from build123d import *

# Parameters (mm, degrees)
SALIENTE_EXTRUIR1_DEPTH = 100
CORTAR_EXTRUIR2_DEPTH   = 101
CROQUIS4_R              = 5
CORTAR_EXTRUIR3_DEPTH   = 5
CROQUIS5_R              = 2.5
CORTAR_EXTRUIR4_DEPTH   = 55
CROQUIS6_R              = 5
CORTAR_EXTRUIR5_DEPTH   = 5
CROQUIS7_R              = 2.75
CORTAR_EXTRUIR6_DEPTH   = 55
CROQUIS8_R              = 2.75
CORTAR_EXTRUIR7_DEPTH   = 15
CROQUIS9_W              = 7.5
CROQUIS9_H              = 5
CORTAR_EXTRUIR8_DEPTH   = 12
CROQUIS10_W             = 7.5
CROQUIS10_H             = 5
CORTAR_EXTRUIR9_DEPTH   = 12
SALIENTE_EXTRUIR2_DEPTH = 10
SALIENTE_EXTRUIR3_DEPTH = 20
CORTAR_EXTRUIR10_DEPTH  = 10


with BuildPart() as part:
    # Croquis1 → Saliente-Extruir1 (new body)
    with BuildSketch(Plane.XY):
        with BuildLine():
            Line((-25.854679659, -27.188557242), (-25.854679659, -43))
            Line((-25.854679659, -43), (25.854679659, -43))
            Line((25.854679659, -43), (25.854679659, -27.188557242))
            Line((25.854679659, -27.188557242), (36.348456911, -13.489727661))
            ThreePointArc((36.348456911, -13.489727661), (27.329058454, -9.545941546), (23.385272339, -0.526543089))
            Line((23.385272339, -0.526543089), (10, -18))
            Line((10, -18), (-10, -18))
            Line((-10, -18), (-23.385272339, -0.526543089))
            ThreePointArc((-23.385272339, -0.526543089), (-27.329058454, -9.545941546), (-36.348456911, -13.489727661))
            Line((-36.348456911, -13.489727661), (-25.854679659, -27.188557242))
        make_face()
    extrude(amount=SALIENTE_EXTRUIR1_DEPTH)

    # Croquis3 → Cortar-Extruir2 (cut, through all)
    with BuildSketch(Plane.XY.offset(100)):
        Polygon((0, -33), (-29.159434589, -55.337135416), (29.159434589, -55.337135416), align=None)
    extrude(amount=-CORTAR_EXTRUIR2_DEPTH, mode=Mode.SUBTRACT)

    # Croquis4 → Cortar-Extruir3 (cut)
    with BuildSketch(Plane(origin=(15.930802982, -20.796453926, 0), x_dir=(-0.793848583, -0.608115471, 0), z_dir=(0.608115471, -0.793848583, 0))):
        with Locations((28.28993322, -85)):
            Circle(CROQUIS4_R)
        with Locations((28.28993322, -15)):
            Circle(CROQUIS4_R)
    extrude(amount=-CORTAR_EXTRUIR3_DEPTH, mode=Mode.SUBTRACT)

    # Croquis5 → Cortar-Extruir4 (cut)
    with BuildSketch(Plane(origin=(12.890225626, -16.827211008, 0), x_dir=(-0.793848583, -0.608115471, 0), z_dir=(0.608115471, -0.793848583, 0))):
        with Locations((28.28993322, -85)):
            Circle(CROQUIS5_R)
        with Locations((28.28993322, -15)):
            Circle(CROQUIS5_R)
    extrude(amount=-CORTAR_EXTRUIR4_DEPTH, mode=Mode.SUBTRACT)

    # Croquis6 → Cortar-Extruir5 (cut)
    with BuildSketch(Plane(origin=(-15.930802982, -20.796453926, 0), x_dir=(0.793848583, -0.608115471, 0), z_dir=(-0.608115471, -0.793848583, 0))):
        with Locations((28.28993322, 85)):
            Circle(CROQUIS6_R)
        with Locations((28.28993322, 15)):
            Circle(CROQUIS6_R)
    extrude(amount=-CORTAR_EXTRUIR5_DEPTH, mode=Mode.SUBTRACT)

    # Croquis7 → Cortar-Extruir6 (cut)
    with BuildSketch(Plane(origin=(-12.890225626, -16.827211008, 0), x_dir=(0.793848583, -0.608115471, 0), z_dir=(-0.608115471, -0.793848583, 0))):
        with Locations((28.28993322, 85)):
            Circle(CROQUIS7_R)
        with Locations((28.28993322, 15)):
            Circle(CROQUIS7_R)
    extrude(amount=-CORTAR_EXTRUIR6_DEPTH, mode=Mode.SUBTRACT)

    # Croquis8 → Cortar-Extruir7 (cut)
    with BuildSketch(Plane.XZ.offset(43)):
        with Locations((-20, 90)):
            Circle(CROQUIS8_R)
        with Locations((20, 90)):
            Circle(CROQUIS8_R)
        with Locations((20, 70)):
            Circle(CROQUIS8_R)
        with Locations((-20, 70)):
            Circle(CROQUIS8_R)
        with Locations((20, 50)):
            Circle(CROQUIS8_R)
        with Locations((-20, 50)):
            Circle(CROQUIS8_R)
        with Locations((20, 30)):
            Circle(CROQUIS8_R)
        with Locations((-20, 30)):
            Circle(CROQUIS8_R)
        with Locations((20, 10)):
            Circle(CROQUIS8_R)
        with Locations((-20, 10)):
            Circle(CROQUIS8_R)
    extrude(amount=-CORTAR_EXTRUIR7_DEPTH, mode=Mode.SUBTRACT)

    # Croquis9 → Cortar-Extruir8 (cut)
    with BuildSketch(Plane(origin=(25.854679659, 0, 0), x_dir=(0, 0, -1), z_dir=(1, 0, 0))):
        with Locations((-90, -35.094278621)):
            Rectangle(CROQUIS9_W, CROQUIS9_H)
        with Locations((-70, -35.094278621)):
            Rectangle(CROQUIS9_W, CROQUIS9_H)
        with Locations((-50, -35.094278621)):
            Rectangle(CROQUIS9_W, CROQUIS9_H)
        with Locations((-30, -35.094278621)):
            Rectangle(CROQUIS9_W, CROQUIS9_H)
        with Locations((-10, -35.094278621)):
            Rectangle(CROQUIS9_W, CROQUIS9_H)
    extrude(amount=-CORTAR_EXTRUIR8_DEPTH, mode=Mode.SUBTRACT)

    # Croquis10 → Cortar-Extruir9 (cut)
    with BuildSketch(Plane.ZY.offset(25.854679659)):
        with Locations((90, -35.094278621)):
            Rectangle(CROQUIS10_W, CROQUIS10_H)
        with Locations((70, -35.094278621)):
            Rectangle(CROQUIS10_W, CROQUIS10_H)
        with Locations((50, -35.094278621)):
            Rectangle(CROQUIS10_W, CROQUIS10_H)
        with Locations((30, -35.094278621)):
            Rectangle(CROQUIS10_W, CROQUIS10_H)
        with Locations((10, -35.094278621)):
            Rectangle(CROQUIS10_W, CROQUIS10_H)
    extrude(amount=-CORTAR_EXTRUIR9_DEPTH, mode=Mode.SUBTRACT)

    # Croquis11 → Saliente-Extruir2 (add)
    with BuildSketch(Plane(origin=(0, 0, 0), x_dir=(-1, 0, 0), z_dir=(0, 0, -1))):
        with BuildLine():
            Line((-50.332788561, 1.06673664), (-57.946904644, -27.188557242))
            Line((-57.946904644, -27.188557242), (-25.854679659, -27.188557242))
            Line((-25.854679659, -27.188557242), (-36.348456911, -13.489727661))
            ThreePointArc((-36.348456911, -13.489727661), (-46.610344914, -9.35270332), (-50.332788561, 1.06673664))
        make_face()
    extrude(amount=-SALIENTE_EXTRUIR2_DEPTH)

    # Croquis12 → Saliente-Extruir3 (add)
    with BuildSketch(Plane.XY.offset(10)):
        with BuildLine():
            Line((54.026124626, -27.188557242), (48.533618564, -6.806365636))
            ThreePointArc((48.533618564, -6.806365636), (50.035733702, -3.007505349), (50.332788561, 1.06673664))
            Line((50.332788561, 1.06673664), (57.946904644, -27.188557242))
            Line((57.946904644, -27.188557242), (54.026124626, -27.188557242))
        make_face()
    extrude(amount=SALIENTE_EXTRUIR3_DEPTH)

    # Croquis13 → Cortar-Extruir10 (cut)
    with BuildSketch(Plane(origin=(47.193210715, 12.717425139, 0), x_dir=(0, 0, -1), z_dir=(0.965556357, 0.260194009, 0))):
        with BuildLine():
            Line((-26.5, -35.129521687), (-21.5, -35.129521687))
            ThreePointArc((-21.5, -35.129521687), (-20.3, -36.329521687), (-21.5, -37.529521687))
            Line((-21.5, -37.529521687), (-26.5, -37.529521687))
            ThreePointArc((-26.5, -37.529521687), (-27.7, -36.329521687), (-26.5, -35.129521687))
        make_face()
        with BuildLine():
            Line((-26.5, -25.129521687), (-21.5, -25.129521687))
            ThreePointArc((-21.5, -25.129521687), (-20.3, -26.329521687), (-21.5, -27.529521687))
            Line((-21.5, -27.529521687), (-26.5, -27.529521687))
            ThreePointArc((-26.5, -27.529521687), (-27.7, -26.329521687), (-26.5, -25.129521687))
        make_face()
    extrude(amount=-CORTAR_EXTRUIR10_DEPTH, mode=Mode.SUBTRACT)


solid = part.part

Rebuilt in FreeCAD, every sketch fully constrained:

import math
import FreeCAD as App
import Part
import Sketcher
from FreeCAD import Vector
Q = App.Units.Quantity

doc = App.newDocument("Part")
body = doc.addObject("PartDesign::Body", "Body")

sketch1 = body.newObject("Sketcher::SketchObject", "Sketch")
sketch1.AttachmentSupport = (doc.getObject("XY_Plane"), [""])
sketch1.MapMode = "FlatFace"
sketch1.addGeometry(Part.LineSegment(Vector(-26, -27, 0), Vector(-26, -43, 0)), False)
sketch1.addGeometry(Part.LineSegment(Vector(-26, -43, 0), Vector(26, -43, 0)), False)
sketch1.addGeometry(Part.LineSegment(Vector(26, -43, 0), Vector(26, -27, 0)), False)
sketch1.addGeometry(Part.LineSegment(Vector(26, -27, 0), Vector(36, -13, 0)), False)
sketch1.addGeometry(Part.ArcOfCircle(Part.Circle(Vector(37, 0, 0), Vector(0, 0, 1), 13), math.radians(-178), math.radians(-92)), False)
sketch1.addGeometry(Part.LineSegment(Vector(23, -1, 0), Vector(10, -18, 0)), False)
sketch1.addGeometry(Part.LineSegment(Vector(10, -18, 0), Vector(-10, -18, 0)), False)
sketch1.addGeometry(Part.LineSegment(Vector(-10, -18, 0), Vector(-23, -1, 0)), False)
sketch1.addGeometry(Part.ArcOfCircle(Part.Circle(Vector(-37, 0, 0), Vector(0, 0, 1), 13), math.radians(-88), math.radians(-2)), False)
sketch1.addGeometry(Part.LineSegment(Vector(-36, -13, 0), Vector(-26, -27, 0)), False)
sketch1.addConstraint(Sketcher.Constraint("Coincident", 0, 2, 1, 1))
sketch1.addConstraint(Sketcher.Constraint("Coincident", 1, 2, 2, 1))
sketch1.addConstraint(Sketcher.Constraint("Coincident", 2, 2, 3, 1))
sketch1.addConstraint(Sketcher.Constraint("Coincident", 3, 2, 4, 2))
sketch1.addConstraint(Sketcher.Constraint("Coincident", 4, 1, 5, 1))
sketch1.addConstraint(Sketcher.Constraint("Coincident", 5, 2, 6, 1))
sketch1.addConstraint(Sketcher.Constraint("Coincident", 6, 2, 7, 1))
sketch1.addConstraint(Sketcher.Constraint("Coincident", 7, 2, 8, 2))
sketch1.addConstraint(Sketcher.Constraint("Coincident", 8, 1, 9, 1))
sketch1.addConstraint(Sketcher.Constraint("Coincident", 9, 2, 0, 1))
sketch1.addConstraint(Sketcher.Constraint("Vertical", 0))
sketch1.addConstraint(Sketcher.Constraint("Horizontal", 1))
sketch1.addConstraint(Sketcher.Constraint("Vertical", 2))
sketch1.addConstraint(Sketcher.Constraint("Horizontal", 6))
sketch1.addConstraint(Sketcher.Constraint("Equal", 4, 8))
sketch1.addConstraint(Sketcher.Constraint("Symmetric", 4, 3, 8, 3, -1, 1))
sketch1.addConstraint(Sketcher.Constraint("Symmetric", 4, 1, 7, 2, -2))
sketch1.addConstraint(Sketcher.Constraint("Symmetric", 2, 2, 9, 2, -2))
sketch1.addConstraint(Sketcher.Constraint("Parallel", 3, 5))
sketch1.addConstraint(Sketcher.Constraint("Parallel", 7, 9))
sketch1.addConstraint(Sketcher.Constraint("Horizontal", 3, 2, 8, 1))
sketch1.addConstraint(Sketcher.Constraint("Radius", 4, Q("13.5 mm")))
sketch1.addConstraint(Sketcher.Constraint("DistanceX", 6, 2, 6, 1, Q("20 mm")))
sketch1.addConstraint(Sketcher.Constraint("DistanceY", 0, 2, -1, 1, Q("43 mm")))
sketch1.addConstraint(Sketcher.Constraint("DistanceY", 5, 2, -1, 1, Q("18 mm")))
sketch1.addConstraint(Sketcher.Constraint("DistanceX", 8, 3, 4, 3, Q("73.75 mm")))
sketch1.addConstraint(Sketcher.Constraint("DistanceX", 1, 1, 1, 2, Q("51.709359 mm")))
sketch1.addConstraint(Sketcher.Constraint("Distance", 5, Q("22.01107 mm")))
sketch1.addConstraint(Sketcher.Constraint("DistanceY", 0, 2, 0, 1, Q("15.811443 mm")))
pad1 = body.newObject("PartDesign::Pad", "Pad")
pad1.Profile = sketch1
pad1.Length = 100

sketch2 = body.newObject("Sketcher::SketchObject", "Sketch001")
sketch2.AttachmentSupport = (doc.getObject("XY_Plane"), [""])
sketch2.MapMode = "FlatFace"
sketch2.AttachmentOffset = App.Placement(Vector(0, 0, 100), App.Rotation())
sketch2.addGeometry(Part.LineSegment(Vector(0, -33, 0), Vector(-29, -55, 0)), False)
sketch2.addGeometry(Part.LineSegment(Vector(-29, -55, 0), Vector(29, -55, 0)), False)
sketch2.addGeometry(Part.LineSegment(Vector(29, -55, 0), Vector(0, -33, 0)), False)
sketch2.addConstraint(Sketcher.Constraint("Coincident", 0, 2, 1, 1))
sketch2.addConstraint(Sketcher.Constraint("Coincident", 1, 2, 2, 1))
sketch2.addConstraint(Sketcher.Constraint("Coincident", 2, 2, 0, 1))
sketch2.addConstraint(Sketcher.Constraint("Horizontal", 1))
sketch2.addConstraint(Sketcher.Constraint("PointOnObject", 2, 2, -2))
sketch2.addConstraint(Sketcher.Constraint("Equal", 0, 2))
sketch2.addConstraint(Sketcher.Constraint("DistanceY", 2, 2, -1, 1, Q("33 mm")))
sketch2.addConstraint(Sketcher.Constraint("DistanceX", 1, 1, 1, 2, Q("58.318869 mm")))
sketch2.addConstraint(Sketcher.Constraint("Distance", 0, Q("36.731733 mm")))
pocket1 = body.newObject("PartDesign::Pocket", "Pocket")
pocket1.Profile = sketch2
pocket1.Type = "ThroughAll"

sketch3 = body.newObject("Sketcher::SketchObject", "Sketch002")
sketch3.Placement = App.Placement(Vector(15.930803, -20.796454, 0), App.Rotation(Vector(-0.793848583, -0.608115471, 0), Vector(0, 0, -0.999999999), Vector(0.608115471, -0.793848583, 0), "ZXY"))
sketch3.addGeometry(Part.Circle(Vector(28, -85, 0), Vector(0, 0, 1), 5), False)
sketch3.addGeometry(Part.Circle(Vector(28, -15, 0), Vector(0, 0, 1), 5), False)
sketch3.addConstraint(Sketcher.Constraint("Equal", 0, 1))
sketch3.addConstraint(Sketcher.Constraint("Vertical", 0, 3, 1, 3))
sketch3.addConstraint(Sketcher.Constraint("Diameter", 0, Q("10 mm")))
sketch3.addConstraint(Sketcher.Constraint("DistanceY", 0, 3, -1, 1, Q("85 mm")))
sketch3.addConstraint(Sketcher.Constraint("DistanceY", 1, 3, -1, 1, Q("15 mm")))
sketch3.addConstraint(Sketcher.Constraint("DistanceX", -1, 1, 0, 3, Q("28.289933 mm")))
pocket2 = body.newObject("PartDesign::Pocket", "Pocket001")
pocket2.Profile = sketch3
pocket2.Length = 5

sketch4 = body.newObject("Sketcher::SketchObject", "Sketch003")
sketch4.Placement = App.Placement(Vector(12.890226, -16.827211, 0), App.Rotation(Vector(-0.793848583, -0.608115471, 0), Vector(0, 0, -0.999999999), Vector(0.608115471, -0.793848583, 0), "ZXY"))
sketch4.addGeometry(Part.Circle(Vector(28.3, -85, 0), Vector(0, 0, 1), 2.5), False)
sketch4.addGeometry(Part.Circle(Vector(28.3, -15, 0), Vector(0, 0, 1), 2.5), False)
sketch4.addConstraint(Sketcher.Constraint("Equal", 0, 1))
sketch4.addConstraint(Sketcher.Constraint("Vertical", 0, 3, 1, 3))
sketch4.addConstraint(Sketcher.Constraint("Diameter", 0, Q("5 mm")))
sketch4.addConstraint(Sketcher.Constraint("DistanceY", 0, 3, -1, 1, Q("85 mm")))
sketch4.addConstraint(Sketcher.Constraint("DistanceY", 1, 3, -1, 1, Q("15 mm")))
sketch4.addConstraint(Sketcher.Constraint("DistanceX", -1, 1, 0, 3, Q("28.289933 mm")))
pocket3 = body.newObject("PartDesign::Pocket", "Pocket002")
pocket3.Profile = sketch4
pocket3.Length = 55

sketch5 = body.newObject("Sketcher::SketchObject", "Sketch004")
sketch5.Placement = App.Placement(Vector(-15.930803, -20.796454, 0), App.Rotation(Vector(0.793848583, -0.608115471, 0), Vector(0, 0, 0.999999999), Vector(-0.608115471, -0.793848583, 0), "ZXY"))
sketch5.addGeometry(Part.Circle(Vector(28, 85, 0), Vector(0, 0, 1), 5), False)
sketch5.addGeometry(Part.Circle(Vector(28, 15, 0), Vector(0, 0, 1), 5), False)
sketch5.addConstraint(Sketcher.Constraint("Equal", 0, 1))
sketch5.addConstraint(Sketcher.Constraint("Vertical", 0, 3, 1, 3))
sketch5.addConstraint(Sketcher.Constraint("Diameter", 0, Q("10 mm")))
sketch5.addConstraint(Sketcher.Constraint("DistanceY", -1, 1, 0, 3, Q("85 mm")))
sketch5.addConstraint(Sketcher.Constraint("DistanceY", -1, 1, 1, 3, Q("15 mm")))
sketch5.addConstraint(Sketcher.Constraint("DistanceX", -1, 1, 0, 3, Q("28.289933 mm")))
pocket4 = body.newObject("PartDesign::Pocket", "Pocket003")
pocket4.Profile = sketch5
pocket4.Length = 5

sketch6 = body.newObject("Sketcher::SketchObject", "Sketch005")
sketch6.Placement = App.Placement(Vector(-12.890226, -16.827211, 0), App.Rotation(Vector(0.793848583, -0.608115471, 0), Vector(0, 0, 0.999999999), Vector(-0.608115471, -0.793848583, 0), "ZXY"))
sketch6.addGeometry(Part.Circle(Vector(28.3, 85, 0), Vector(0, 0, 1), 2.8), False)
sketch6.addGeometry(Part.Circle(Vector(28.3, 15, 0), Vector(0, 0, 1), 2.8), False)
sketch6.addConstraint(Sketcher.Constraint("Equal", 0, 1))
sketch6.addConstraint(Sketcher.Constraint("Vertical", 0, 3, 1, 3))
sketch6.addConstraint(Sketcher.Constraint("Diameter", 0, Q("5.5 mm")))
sketch6.addConstraint(Sketcher.Constraint("DistanceY", -1, 1, 0, 3, Q("85 mm")))
sketch6.addConstraint(Sketcher.Constraint("DistanceY", -1, 1, 1, 3, Q("15 mm")))
sketch6.addConstraint(Sketcher.Constraint("DistanceX", -1, 1, 0, 3, Q("28.289933 mm")))
pocket5 = body.newObject("PartDesign::Pocket", "Pocket004")
pocket5.Profile = sketch6
pocket5.Length = 55

sketch7 = body.newObject("Sketcher::SketchObject", "Sketch006")
sketch7.AttachmentSupport = (doc.getObject("XZ_Plane"), [""])
sketch7.MapMode = "FlatFace"
sketch7.AttachmentOffset = App.Placement(Vector(0, 0, 43), App.Rotation())
sketch7.addGeometry(Part.Circle(Vector(-20, 90, 0), Vector(0, 0, 1), 2.8), False)
sketch7.addGeometry(Part.Circle(Vector(20, 90, 0), Vector(0, 0, 1), 2.8), False)
sketch7.addGeometry(Part.Circle(Vector(20, 70, 0), Vector(0, 0, 1), 2.8), False)
sketch7.addGeometry(Part.Circle(Vector(-20, 70, 0), Vector(0, 0, 1), 2.8), False)
sketch7.addGeometry(Part.Circle(Vector(20, 50, 0), Vector(0, 0, 1), 2.8), False)
sketch7.addGeometry(Part.Circle(Vector(-20, 50, 0), Vector(0, 0, 1), 2.8), False)
sketch7.addGeometry(Part.Circle(Vector(20, 30, 0), Vector(0, 0, 1), 2.8), False)
sketch7.addGeometry(Part.Circle(Vector(-20, 30, 0), Vector(0, 0, 1), 2.8), False)
sketch7.addGeometry(Part.Circle(Vector(20, 10, 0), Vector(0, 0, 1), 2.8), False)
sketch7.addGeometry(Part.Circle(Vector(-20, 10, 0), Vector(0, 0, 1), 2.8), False)
sketch7.addConstraint(Sketcher.Constraint("Equal", 0, 1))
sketch7.addConstraint(Sketcher.Constraint("Equal", 1, 2))
sketch7.addConstraint(Sketcher.Constraint("Equal", 2, 3))
sketch7.addConstraint(Sketcher.Constraint("Equal", 3, 4))
sketch7.addConstraint(Sketcher.Constraint("Equal", 4, 5))
sketch7.addConstraint(Sketcher.Constraint("Equal", 5, 6))
sketch7.addConstraint(Sketcher.Constraint("Equal", 6, 7))
sketch7.addConstraint(Sketcher.Constraint("Equal", 7, 8))
sketch7.addConstraint(Sketcher.Constraint("Equal", 8, 9))
sketch7.addConstraint(Sketcher.Constraint("Symmetric", 0, 3, 1, 3, -2))
sketch7.addConstraint(Sketcher.Constraint("Symmetric", 2, 3, 3, 3, -2))
sketch7.addConstraint(Sketcher.Constraint("Symmetric", 4, 3, 5, 3, -2))
sketch7.addConstraint(Sketcher.Constraint("Symmetric", 6, 3, 7, 3, -2))
sketch7.addConstraint(Sketcher.Constraint("Symmetric", 8, 3, 9, 3, -2))
sketch7.addConstraint(Sketcher.Constraint("Vertical", 1, 3, 2, 3))
sketch7.addConstraint(Sketcher.Constraint("Vertical", 2, 3, 4, 3))
sketch7.addConstraint(Sketcher.Constraint("Vertical", 4, 3, 6, 3))
sketch7.addConstraint(Sketcher.Constraint("Vertical", 6, 3, 8, 3))
sketch7.addConstraint(Sketcher.Constraint("Diameter", 0, Q("5.5 mm")))
sketch7.addConstraint(Sketcher.Constraint("DistanceX", 0, 3, -1, 1, Q("20 mm")))
sketch7.addConstraint(Sketcher.Constraint("DistanceY", -1, 1, 0, 3, Q("90 mm")))
sketch7.addConstraint(Sketcher.Constraint("DistanceY", -1, 1, 2, 3, Q("70 mm")))
sketch7.addConstraint(Sketcher.Constraint("DistanceY", -1, 1, 4, 3, Q("50 mm")))
sketch7.addConstraint(Sketcher.Constraint("DistanceY", -1, 1, 6, 3, Q("30 mm")))
sketch7.addConstraint(Sketcher.Constraint("DistanceY", -1, 1, 8, 3, Q("10 mm")))
pocket6 = body.newObject("PartDesign::Pocket", "Pocket005")
pocket6.Profile = sketch7
pocket6.Length = 15

sketch8 = body.newObject("Sketcher::SketchObject", "Sketch007")
sketch8.AttachmentSupport = (doc.getObject("YZ_Plane"), [""])
sketch8.MapMode = "FlatFace"
sketch8.AttachmentOffset = App.Placement(Vector(0, 0, 25.85468), App.Rotation())
sketch8.addGeometry(Part.LineSegment(Vector(-33, 94, 0), Vector(-38, 94, 0)), False)
sketch8.addGeometry(Part.LineSegment(Vector(-38, 94, 0), Vector(-38, 86, 0)), False)
sketch8.addGeometry(Part.LineSegment(Vector(-38, 86, 0), Vector(-33, 86, 0)), False)
sketch8.addGeometry(Part.LineSegment(Vector(-33, 86, 0), Vector(-33, 94, 0)), False)
sketch8.addGeometry(Part.LineSegment(Vector(-33, 74, 0), Vector(-38, 74, 0)), False)
sketch8.addGeometry(Part.LineSegment(Vector(-38, 74, 0), Vector(-38, 66, 0)), False)
sketch8.addGeometry(Part.LineSegment(Vector(-38, 66, 0), Vector(-33, 66, 0)), False)
sketch8.addGeometry(Part.LineSegment(Vector(-33, 66, 0), Vector(-33, 74, 0)), False)
sketch8.addGeometry(Part.LineSegment(Vector(-33, 54, 0), Vector(-38, 54, 0)), False)
sketch8.addGeometry(Part.LineSegment(Vector(-38, 54, 0), Vector(-38, 46, 0)), False)
sketch8.addGeometry(Part.LineSegment(Vector(-38, 46, 0), Vector(-33, 46, 0)), False)
sketch8.addGeometry(Part.LineSegment(Vector(-33, 46, 0), Vector(-33, 54, 0)), False)
sketch8.addGeometry(Part.LineSegment(Vector(-33, 34, 0), Vector(-38, 34, 0)), False)
sketch8.addGeometry(Part.LineSegment(Vector(-38, 34, 0), Vector(-38, 26, 0)), False)
sketch8.addGeometry(Part.LineSegment(Vector(-38, 26, 0), Vector(-33, 26, 0)), False)
sketch8.addGeometry(Part.LineSegment(Vector(-33, 26, 0), Vector(-33, 34, 0)), False)
sketch8.addGeometry(Part.LineSegment(Vector(-33, 14, 0), Vector(-38, 14, 0)), False)
sketch8.addGeometry(Part.LineSegment(Vector(-38, 14, 0), Vector(-38, 6, 0)), False)
sketch8.addGeometry(Part.LineSegment(Vector(-38, 6, 0), Vector(-33, 6, 0)), False)
sketch8.addGeometry(Part.LineSegment(Vector(-33, 6, 0), Vector(-33, 14, 0)), False)
sketch8.addConstraint(Sketcher.Constraint("Coincident", 0, 2, 1, 1))
sketch8.addConstraint(Sketcher.Constraint("Coincident", 1, 2, 2, 1))
sketch8.addConstraint(Sketcher.Constraint("Coincident", 2, 2, 3, 1))
sketch8.addConstraint(Sketcher.Constraint("Coincident", 3, 2, 0, 1))
sketch8.addConstraint(Sketcher.Constraint("Coincident", 4, 2, 5, 1))
sketch8.addConstraint(Sketcher.Constraint("Coincident", 5, 2, 6, 1))
sketch8.addConstraint(Sketcher.Constraint("Coincident", 6, 2, 7, 1))
sketch8.addConstraint(Sketcher.Constraint("Coincident", 7, 2, 4, 1))
sketch8.addConstraint(Sketcher.Constraint("Coincident", 8, 2, 9, 1))
sketch8.addConstraint(Sketcher.Constraint("Coincident", 9, 2, 10, 1))
sketch8.addConstraint(Sketcher.Constraint("Coincident", 10, 2, 11, 1))
sketch8.addConstraint(Sketcher.Constraint("Coincident", 11, 2, 8, 1))
sketch8.addConstraint(Sketcher.Constraint("Coincident", 12, 2, 13, 1))
sketch8.addConstraint(Sketcher.Constraint("Coincident", 13, 2, 14, 1))
sketch8.addConstraint(Sketcher.Constraint("Coincident", 14, 2, 15, 1))
sketch8.addConstraint(Sketcher.Constraint("Coincident", 15, 2, 12, 1))
sketch8.addConstraint(Sketcher.Constraint("Coincident", 16, 2, 17, 1))
sketch8.addConstraint(Sketcher.Constraint("Coincident", 17, 2, 18, 1))
sketch8.addConstraint(Sketcher.Constraint("Coincident", 18, 2, 19, 1))
sketch8.addConstraint(Sketcher.Constraint("Coincident", 19, 2, 16, 1))
sketch8.addConstraint(Sketcher.Constraint("Horizontal", 0))
sketch8.addConstraint(Sketcher.Constraint("Vertical", 1))
sketch8.addConstraint(Sketcher.Constraint("Horizontal", 2))
sketch8.addConstraint(Sketcher.Constraint("Vertical", 3))
sketch8.addConstraint(Sketcher.Constraint("Horizontal", 4))
sketch8.addConstraint(Sketcher.Constraint("Vertical", 5))
sketch8.addConstraint(Sketcher.Constraint("Horizontal", 6))
sketch8.addConstraint(Sketcher.Constraint("Vertical", 7))
sketch8.addConstraint(Sketcher.Constraint("Horizontal", 8))
sketch8.addConstraint(Sketcher.Constraint("Vertical", 9))
sketch8.addConstraint(Sketcher.Constraint("Horizontal", 10))
sketch8.addConstraint(Sketcher.Constraint("Vertical", 11))
sketch8.addConstraint(Sketcher.Constraint("Horizontal", 12))
sketch8.addConstraint(Sketcher.Constraint("Vertical", 13))
sketch8.addConstraint(Sketcher.Constraint("Horizontal", 14))
sketch8.addConstraint(Sketcher.Constraint("Vertical", 15))
sketch8.addConstraint(Sketcher.Constraint("Horizontal", 16))
sketch8.addConstraint(Sketcher.Constraint("Vertical", 17))
sketch8.addConstraint(Sketcher.Constraint("Horizontal", 18))
sketch8.addConstraint(Sketcher.Constraint("Vertical", 19))
sketch8.addConstraint(Sketcher.Constraint("Vertical", 1, 2, 4, 2))
sketch8.addConstraint(Sketcher.Constraint("Vertical", 3, 2, 6, 2))
sketch8.addConstraint(Sketcher.Constraint("Vertical", 5, 2, 8, 2))
sketch8.addConstraint(Sketcher.Constraint("Vertical", 7, 2, 10, 2))
sketch8.addConstraint(Sketcher.Constraint("Vertical", 9, 2, 12, 2))
sketch8.addConstraint(Sketcher.Constraint("Vertical", 11, 2, 14, 2))
sketch8.addConstraint(Sketcher.Constraint("Vertical", 13, 2, 16, 2))
sketch8.addConstraint(Sketcher.Constraint("Vertical", 15, 2, 18, 2))
sketch8.addConstraint(Sketcher.Constraint("Equal", 3, 5))
sketch8.addConstraint(Sketcher.Constraint("Equal", 7, 9))
sketch8.addConstraint(Sketcher.Constraint("Equal", 11, 13))
sketch8.addConstraint(Sketcher.Constraint("Equal", 15, 17))
sketch8.addConstraint(Sketcher.Constraint("DistanceX", 0, 2, 0, 1, Q("5 mm")))
sketch8.addConstraint(Sketcher.Constraint("DistanceY", 1, 2, 1, 1, Q("7.5 mm")))
sketch8.addConstraint(Sketcher.Constraint("DistanceY", 4, 2, 0, 2, Q("20 mm")))
sketch8.addConstraint(Sketcher.Constraint("DistanceY", 8, 2, 4, 2, Q("20 mm")))
sketch8.addConstraint(Sketcher.Constraint("DistanceY", 12, 2, 8, 2, Q("20 mm")))
sketch8.addConstraint(Sketcher.Constraint("DistanceY", 16, 2, 12, 2, Q("20 mm")))
sketch8.addConstraint(Sketcher.Constraint("DistanceY", -1, 1, 0, 2, Q("93.75 mm")))
sketch8.addConstraint(Sketcher.Constraint("DistanceX", 0, 2, -1, 1, Q("37.594279 mm")))
pocket7 = body.newObject("PartDesign::Pocket", "Pocket006")
pocket7.Profile = sketch8
pocket7.Length = 12

sketch9 = body.newObject("Sketcher::SketchObject", "Sketch008")
sketch9.AttachmentSupport = (doc.getObject("YZ_Plane"), [""])
sketch9.MapMode = "FlatFace"
sketch9.AttachmentOffset = App.Placement(Vector(0, 0, -25.85468), App.Rotation())
sketch9.addGeometry(Part.LineSegment(Vector(-33, 86, 0), Vector(-38, 86, 0)), False)
sketch9.addGeometry(Part.LineSegment(Vector(-38, 86, 0), Vector(-38, 94, 0)), False)
sketch9.addGeometry(Part.LineSegment(Vector(-38, 94, 0), Vector(-33, 94, 0)), False)
sketch9.addGeometry(Part.LineSegment(Vector(-33, 94, 0), Vector(-33, 86, 0)), False)
sketch9.addGeometry(Part.LineSegment(Vector(-33, 66, 0), Vector(-38, 66, 0)), False)
sketch9.addGeometry(Part.LineSegment(Vector(-38, 66, 0), Vector(-38, 74, 0)), False)
sketch9.addGeometry(Part.LineSegment(Vector(-38, 74, 0), Vector(-33, 74, 0)), False)
sketch9.addGeometry(Part.LineSegment(Vector(-33, 74, 0), Vector(-33, 66, 0)), False)
sketch9.addGeometry(Part.LineSegment(Vector(-33, 46, 0), Vector(-38, 46, 0)), False)
sketch9.addGeometry(Part.LineSegment(Vector(-38, 46, 0), Vector(-38, 54, 0)), False)
sketch9.addGeometry(Part.LineSegment(Vector(-38, 54, 0), Vector(-33, 54, 0)), False)
sketch9.addGeometry(Part.LineSegment(Vector(-33, 54, 0), Vector(-33, 46, 0)), False)
sketch9.addGeometry(Part.LineSegment(Vector(-33, 26, 0), Vector(-38, 26, 0)), False)
sketch9.addGeometry(Part.LineSegment(Vector(-38, 26, 0), Vector(-38, 34, 0)), False)
sketch9.addGeometry(Part.LineSegment(Vector(-38, 34, 0), Vector(-33, 34, 0)), False)
sketch9.addGeometry(Part.LineSegment(Vector(-33, 34, 0), Vector(-33, 26, 0)), False)
sketch9.addGeometry(Part.LineSegment(Vector(-33, 6, 0), Vector(-38, 6, 0)), False)
sketch9.addGeometry(Part.LineSegment(Vector(-38, 6, 0), Vector(-38, 14, 0)), False)
sketch9.addGeometry(Part.LineSegment(Vector(-38, 14, 0), Vector(-33, 14, 0)), False)
sketch9.addGeometry(Part.LineSegment(Vector(-33, 14, 0), Vector(-33, 6, 0)), False)
sketch9.addConstraint(Sketcher.Constraint("Coincident", 0, 2, 1, 1))
sketch9.addConstraint(Sketcher.Constraint("Coincident", 1, 2, 2, 1))
sketch9.addConstraint(Sketcher.Constraint("Coincident", 2, 2, 3, 1))
sketch9.addConstraint(Sketcher.Constraint("Coincident", 3, 2, 0, 1))
sketch9.addConstraint(Sketcher.Constraint("Coincident", 4, 2, 5, 1))
sketch9.addConstraint(Sketcher.Constraint("Coincident", 5, 2, 6, 1))
sketch9.addConstraint(Sketcher.Constraint("Coincident", 6, 2, 7, 1))
sketch9.addConstraint(Sketcher.Constraint("Coincident", 7, 2, 4, 1))
sketch9.addConstraint(Sketcher.Constraint("Coincident", 8, 2, 9, 1))
sketch9.addConstraint(Sketcher.Constraint("Coincident", 9, 2, 10, 1))
sketch9.addConstraint(Sketcher.Constraint("Coincident", 10, 2, 11, 1))
sketch9.addConstraint(Sketcher.Constraint("Coincident", 11, 2, 8, 1))
sketch9.addConstraint(Sketcher.Constraint("Coincident", 12, 2, 13, 1))
sketch9.addConstraint(Sketcher.Constraint("Coincident", 13, 2, 14, 1))
sketch9.addConstraint(Sketcher.Constraint("Coincident", 14, 2, 15, 1))
sketch9.addConstraint(Sketcher.Constraint("Coincident", 15, 2, 12, 1))
sketch9.addConstraint(Sketcher.Constraint("Coincident", 16, 2, 17, 1))
sketch9.addConstraint(Sketcher.Constraint("Coincident", 17, 2, 18, 1))
sketch9.addConstraint(Sketcher.Constraint("Coincident", 18, 2, 19, 1))
sketch9.addConstraint(Sketcher.Constraint("Coincident", 19, 2, 16, 1))
sketch9.addConstraint(Sketcher.Constraint("Horizontal", 0))
sketch9.addConstraint(Sketcher.Constraint("Vertical", 1))
sketch9.addConstraint(Sketcher.Constraint("Horizontal", 2))
sketch9.addConstraint(Sketcher.Constraint("Vertical", 3))
sketch9.addConstraint(Sketcher.Constraint("Horizontal", 4))
sketch9.addConstraint(Sketcher.Constraint("Vertical", 5))
sketch9.addConstraint(Sketcher.Constraint("Horizontal", 6))
sketch9.addConstraint(Sketcher.Constraint("Vertical", 7))
sketch9.addConstraint(Sketcher.Constraint("Horizontal", 8))
sketch9.addConstraint(Sketcher.Constraint("Vertical", 9))
sketch9.addConstraint(Sketcher.Constraint("Horizontal", 10))
sketch9.addConstraint(Sketcher.Constraint("Vertical", 11))
sketch9.addConstraint(Sketcher.Constraint("Horizontal", 12))
sketch9.addConstraint(Sketcher.Constraint("Vertical", 13))
sketch9.addConstraint(Sketcher.Constraint("Horizontal", 14))
sketch9.addConstraint(Sketcher.Constraint("Vertical", 15))
sketch9.addConstraint(Sketcher.Constraint("Horizontal", 16))
sketch9.addConstraint(Sketcher.Constraint("Vertical", 17))
sketch9.addConstraint(Sketcher.Constraint("Horizontal", 18))
sketch9.addConstraint(Sketcher.Constraint("Vertical", 19))
sketch9.addConstraint(Sketcher.Constraint("Vertical", 1, 2, 4, 2))
sketch9.addConstraint(Sketcher.Constraint("Vertical", 3, 2, 6, 2))
sketch9.addConstraint(Sketcher.Constraint("Vertical", 5, 2, 8, 2))
sketch9.addConstraint(Sketcher.Constraint("Vertical", 7, 2, 10, 2))
sketch9.addConstraint(Sketcher.Constraint("Vertical", 9, 2, 12, 2))
sketch9.addConstraint(Sketcher.Constraint("Vertical", 11, 2, 14, 2))
sketch9.addConstraint(Sketcher.Constraint("Vertical", 13, 2, 16, 2))
sketch9.addConstraint(Sketcher.Constraint("Vertical", 15, 2, 18, 2))
sketch9.addConstraint(Sketcher.Constraint("Equal", 3, 5))
sketch9.addConstraint(Sketcher.Constraint("Equal", 7, 9))
sketch9.addConstraint(Sketcher.Constraint("Equal", 11, 13))
sketch9.addConstraint(Sketcher.Constraint("Equal", 15, 17))
sketch9.addConstraint(Sketcher.Constraint("DistanceX", 0, 2, 0, 1, Q("5 mm")))
sketch9.addConstraint(Sketcher.Constraint("DistanceY", 1, 1, 1, 2, Q("7.5 mm")))
sketch9.addConstraint(Sketcher.Constraint("DistanceY", 4, 2, 0, 2, Q("20 mm")))
sketch9.addConstraint(Sketcher.Constraint("DistanceY", 8, 2, 4, 2, Q("20 mm")))
sketch9.addConstraint(Sketcher.Constraint("DistanceY", 12, 2, 8, 2, Q("20 mm")))
sketch9.addConstraint(Sketcher.Constraint("DistanceY", 16, 2, 12, 2, Q("20 mm")))
sketch9.addConstraint(Sketcher.Constraint("DistanceY", -1, 1, 0, 2, Q("86.25 mm")))
sketch9.addConstraint(Sketcher.Constraint("DistanceX", 0, 2, -1, 1, Q("37.594279 mm")))
pocket8 = body.newObject("PartDesign::Pocket", "Pocket007")
pocket8.Profile = sketch9
pocket8.Length = 12
pocket8.Reversed = True

sketch10 = body.newObject("Sketcher::SketchObject", "Sketch009")
sketch10.AttachmentSupport = (doc.getObject("XY_Plane"), [""])
sketch10.MapMode = "FlatFace"
sketch10.addGeometry(Part.LineSegment(Vector(50, 1, 0), Vector(58, -27, 0)), False)
sketch10.addGeometry(Part.LineSegment(Vector(58, -27, 0), Vector(26, -27, 0)), False)
sketch10.addGeometry(Part.LineSegment(Vector(26, -27, 0), Vector(36, -13, 0)), False)
sketch10.addGeometry(Part.ArcOfCircle(Part.Circle(Vector(37, 0, 0), Vector(0, 0, 1), 14), math.radians(-92), math.radians(5)), False)
sketch10.addConstraint(Sketcher.Constraint("Coincident", 0, 2, 1, 1))
sketch10.addConstraint(Sketcher.Constraint("Coincident", 1, 2, 2, 1))
sketch10.addConstraint(Sketcher.Constraint("Coincident", 2, 2, 3, 1))
sketch10.addConstraint(Sketcher.Constraint("Coincident", 3, 2, 0, 1))
sketch10.addConstraint(Sketcher.Constraint("Horizontal", 1))
sketch10.addConstraint(Sketcher.Constraint("PointOnObject", 3, 3, -1))
sketch10.addConstraint(Sketcher.Constraint("Radius", 3, Q("13.5 mm")))
sketch10.addConstraint(Sketcher.Constraint("DistanceX", -1, 1, 3, 3, Q("36.875 mm")))
sketch10.addConstraint(Sketcher.Constraint("DistanceX", 1, 2, 1, 1, Q("32.092225 mm")))
sketch10.addConstraint(Sketcher.Constraint("DistanceX", -1, 1, 1, 2, Q("25.85468 mm")))
sketch10.addConstraint(Sketcher.Constraint("DistanceX", -1, 1, 3, 2, Q("50.332789 mm")))
sketch10.addConstraint(Sketcher.Constraint("DistanceY", 1, 2, 2, 2, Q("13.69883 mm")))
sketch10.addConstraint(Sketcher.Constraint("DistanceX", 2, 2, 3, 2, Q("13.984332 mm")))
pad2 = body.newObject("PartDesign::Pad", "Pad001")
pad2.Profile = sketch10
pad2.Length = 10

sketch11 = body.newObject("Sketcher::SketchObject", "Sketch010")
sketch11.AttachmentSupport = (doc.getObject("XY_Plane"), [""])
sketch11.MapMode = "FlatFace"
sketch11.AttachmentOffset = App.Placement(Vector(0, 0, 10), App.Rotation())
sketch11.addGeometry(Part.LineSegment(Vector(48.5, -6.8, 0), Vector(54, -27.2, 0)), False)
sketch11.addGeometry(Part.LineSegment(Vector(54, -27.2, 0), Vector(57.9, -27.2, 0)), False)
sketch11.addGeometry(Part.LineSegment(Vector(57.9, -27.2, 0), Vector(50.3, 1.1, 0)), False)
sketch11.addGeometry(Part.ArcOfCircle(Part.Circle(Vector(36.9, 0, 0), Vector(0, 0, 1), 13.5), math.radians(-30), math.radians(5)), False)
sketch11.addConstraint(Sketcher.Constraint("Coincident", 0, 2, 1, 1))
sketch11.addConstraint(Sketcher.Constraint("Coincident", 1, 2, 2, 1))
sketch11.addConstraint(Sketcher.Constraint("Coincident", 2, 2, 3, 2))
sketch11.addConstraint(Sketcher.Constraint("Coincident", 3, 1, 0, 1))
sketch11.addConstraint(Sketcher.Constraint("Horizontal", 1))
sketch11.addConstraint(Sketcher.Constraint("PointOnObject", 3, 3, -1))
sketch11.addConstraint(Sketcher.Constraint("Parallel", 0, 2))
sketch11.addConstraint(Sketcher.Constraint("Radius", 3, Q("13.5 mm")))
sketch11.addConstraint(Sketcher.Constraint("DistanceX", -1, 1, 3, 3, Q("36.875 mm")))
sketch11.addConstraint(Sketcher.Constraint("DistanceX", 1, 1, 1, 2, Q("3.92078 mm")))
sketch11.addConstraint(Sketcher.Constraint("Distance", 0, Q("21.109272 mm")))
sketch11.addConstraint(Sketcher.Constraint("DistanceX", -1, 1, 2, 2, Q("50.332789 mm")))
sketch11.addConstraint(Sketcher.Constraint("DistanceX", -1, 1, 3, 1, Q("48.533619 mm")))
pad3 = body.newObject("PartDesign::Pad", "Pad002")
pad3.Profile = sketch11
pad3.Length = 20

sketch12 = body.newObject("Sketcher::SketchObject", "Sketch011")
sketch12.Placement = App.Placement(Vector(47.193211, 12.717425, 0), App.Rotation(Vector(0, 0, -1), Vector(-0.260194009, 0.965556357, 0), Vector(0.965556357, 0.260194009, 0), "ZXY"))
sketch12.addGeometry(Part.LineSegment(Vector(-21.5, -35.1, 0), Vector(-26.5, -35.1, 0)), False)
sketch12.addGeometry(Part.ArcOfCircle(Part.Circle(Vector(-26.5, -36.3, 0), Vector(0, 0, 1), 1.2), math.radians(90), math.radians(270)), False)
sketch12.addGeometry(Part.LineSegment(Vector(-26.5, -37.5, 0), Vector(-21.5, -37.5, 0)), False)
sketch12.addGeometry(Part.ArcOfCircle(Part.Circle(Vector(-21.5, -36.3, 0), Vector(0, 0, 1), 1.2), math.radians(-90), math.radians(90)), False)
sketch12.addGeometry(Part.LineSegment(Vector(-21.5, -25.1, 0), Vector(-26.5, -25.1, 0)), False)
sketch12.addGeometry(Part.ArcOfCircle(Part.Circle(Vector(-26.5, -26.3, 0), Vector(0, 0, 1), 1.2), math.radians(90), math.radians(270)), False)
sketch12.addGeometry(Part.LineSegment(Vector(-26.5, -27.5, 0), Vector(-21.5, -27.5, 0)), False)
sketch12.addGeometry(Part.ArcOfCircle(Part.Circle(Vector(-21.5, -26.3, 0), Vector(0, 0, 1), 1.2), math.radians(-90), math.radians(90)), False)
sketch12.addConstraint(Sketcher.Constraint("Tangent", 0, 2, 1, 1))
sketch12.addConstraint(Sketcher.Constraint("Tangent", 1, 2, 2, 1))
sketch12.addConstraint(Sketcher.Constraint("Tangent", 2, 2, 3, 1))
sketch12.addConstraint(Sketcher.Constraint("Tangent", 3, 2, 0, 1))
sketch12.addConstraint(Sketcher.Constraint("Tangent", 4, 2, 5, 1))
sketch12.addConstraint(Sketcher.Constraint("Tangent", 5, 2, 6, 1))
sketch12.addConstraint(Sketcher.Constraint("Tangent", 6, 2, 7, 1))
sketch12.addConstraint(Sketcher.Constraint("Tangent", 7, 2, 4, 1))
sketch12.addConstraint(Sketcher.Constraint("Horizontal", 0))
sketch12.addConstraint(Sketcher.Constraint("Horizontal", 2))
sketch12.addConstraint(Sketcher.Constraint("Horizontal", 4))
sketch12.addConstraint(Sketcher.Constraint("Horizontal", 6))
sketch12.addConstraint(Sketcher.Constraint("Equal", 3, 5))
sketch12.addConstraint(Sketcher.Constraint("Vertical", 1, 3, 5, 3))
sketch12.addConstraint(Sketcher.Constraint("Vertical", 3, 3, 7, 3))
sketch12.addConstraint(Sketcher.Constraint("Radius", 1, Q("1.2 mm")))
sketch12.addConstraint(Sketcher.Constraint("DistanceX", 0, 2, 0, 1, Q("5 mm")))
sketch12.addConstraint(Sketcher.Constraint("DistanceY", 1, 3, 5, 3, Q("10 mm")))
sketch12.addConstraint(Sketcher.Constraint("DistanceX", 1, 3, -1, 1, Q("26.5 mm")))
sketch12.addConstraint(Sketcher.Constraint("DistanceY", 1, 3, -1, 1, Q("36.329522 mm")))
pocket9 = body.newObject("PartDesign::Pocket", "Pocket008")
pocket9.Profile = sketch12
pocket9.Length = 10

doc.recompute()
